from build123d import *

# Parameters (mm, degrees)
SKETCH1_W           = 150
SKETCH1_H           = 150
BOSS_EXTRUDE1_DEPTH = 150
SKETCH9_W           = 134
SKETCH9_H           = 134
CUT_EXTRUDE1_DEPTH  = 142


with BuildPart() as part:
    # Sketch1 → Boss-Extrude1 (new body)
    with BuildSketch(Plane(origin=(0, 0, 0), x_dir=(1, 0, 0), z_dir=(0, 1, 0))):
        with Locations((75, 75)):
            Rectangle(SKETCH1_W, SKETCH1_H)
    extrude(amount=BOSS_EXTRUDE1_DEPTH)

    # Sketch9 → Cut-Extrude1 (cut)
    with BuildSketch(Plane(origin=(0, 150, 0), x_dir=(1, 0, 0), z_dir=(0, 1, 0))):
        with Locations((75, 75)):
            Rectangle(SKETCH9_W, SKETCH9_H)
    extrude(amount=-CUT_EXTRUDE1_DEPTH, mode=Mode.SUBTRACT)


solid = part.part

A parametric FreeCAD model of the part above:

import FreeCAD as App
import Part
import Sketcher
from FreeCAD import Vector
Q = App.Units.Quantity


def add_polygon(sketch, points):
    """Adds a closed chain of lines whose ends are joined by coincident constraints."""
    first, n = sketch.GeometryCount, len(points)
    for a, b in zip(points, points[1:] + points[:1]):
        sketch.addGeometry(Part.LineSegment(App.Vector(*a, 0), App.Vector(*b, 0)), False)
    for i in range(n):
        sketch.addConstraint(Sketcher.Constraint("Coincident", first + i, 2, first + (i + 1) % n, 1))

doc = App.newDocument("Part")
body = doc.addObject("PartDesign::Body", "Body")

# Sketch on XZ plane
sketch1 = body.newObject("Sketcher::SketchObject", "Sketch")
sketch1.AttachmentSupport = (doc.getObject("XZ_Plane"), [""])
sketch1.MapMode = "FlatFace"
add_polygon(sketch1, [(0, -150), (0, 0), (150, 0), (150, -150)])  # lines 0-3
sketch1.addConstraint([
    Sketcher.Constraint("Vertical", 0),
    Sketcher.Constraint("Horizontal", 1),
    Sketcher.Constraint("Vertical", 2),
    Sketcher.Constraint("Horizontal", 3),
    Sketcher.Constraint("Coincident", 0, 2, -1, 1),
    Sketcher.Constraint("Equal", 3, 0),
    Sketcher.Constraint("DistanceX", 1, 1, 1, 2, Q("150 mm")),
])
pad1 = body.newObject("PartDesign::Pad", "Pad")
pad1.Profile = sketch1
pad1.Length = 150
pad1.Reversed = True

# Sketch on XZ plane
sketch2 = body.newObject("Sketcher::SketchObject", "Sketch001")
sketch2.AttachmentSupport = (doc.getObject("XZ_Plane"), [""])
sketch2.MapMode = "FlatFace"
sketch2.AttachmentOffset = App.Placement(Vector(0, 0, -150), App.Rotation())
add_polygon(sketch2, [(8, -142), (8, -8), (142, -8), (142, -142)])  # lines 0-3
sketch2.addConstraint([
    Sketcher.Constraint("Vertical", 0),
    Sketcher.Constraint("Horizontal", 1),
    Sketcher.Constraint("Vertical", 2),
    Sketcher.Constraint("Horizontal", 3),
    Sketcher.Constraint("Equal", 3, 0),
    Sketcher.Constraint("DistanceX", 1, 1, 1, 2, Q("134 mm")),
    Sketcher.Constraint("DistanceX", -1, 1, 0, 2, Q("8 mm")),
    Sketcher.Constraint("DistanceY", 0, 2, -1, 1, Q("8 mm")),
])
pocket1 = body.newObject("PartDesign::Pocket", "Pocket")
pocket1.Profile = sketch2
pocket1.Length = 142
pocket1.Reversed = True

doc.recompute()
